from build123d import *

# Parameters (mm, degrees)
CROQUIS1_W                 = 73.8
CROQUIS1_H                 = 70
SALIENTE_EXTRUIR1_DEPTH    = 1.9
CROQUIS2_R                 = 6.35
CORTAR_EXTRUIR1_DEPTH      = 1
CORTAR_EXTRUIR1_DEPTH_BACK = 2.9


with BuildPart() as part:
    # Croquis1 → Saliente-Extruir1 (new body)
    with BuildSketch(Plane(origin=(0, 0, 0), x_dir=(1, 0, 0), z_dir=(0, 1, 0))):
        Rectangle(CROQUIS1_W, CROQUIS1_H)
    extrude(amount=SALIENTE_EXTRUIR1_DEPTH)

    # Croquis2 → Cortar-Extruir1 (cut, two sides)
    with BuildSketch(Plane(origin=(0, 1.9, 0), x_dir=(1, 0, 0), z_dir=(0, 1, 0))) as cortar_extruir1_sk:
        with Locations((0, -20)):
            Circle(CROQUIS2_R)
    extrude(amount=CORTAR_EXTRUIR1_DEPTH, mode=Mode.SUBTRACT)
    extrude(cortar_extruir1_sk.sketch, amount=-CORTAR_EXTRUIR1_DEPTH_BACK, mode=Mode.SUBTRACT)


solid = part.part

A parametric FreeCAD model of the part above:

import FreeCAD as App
import Part
import Sketcher
from FreeCAD import Vector
Q = App.Units.Quantity

doc = App.newDocument("Part")
params = doc.addObject("Spreadsheet::Sheet", "Params")
for row, (alias, value) in enumerate([
    ("sketch1_height", "70 mm"),
    ("sketch1_width", "73.8 mm"),
    ("pad1_length", "1.9 mm"),
    ("sketch2_diameter", "12.7 mm"),
], start=1):
    params.set(f"A{row}", alias)
    params.set(f"B{row}", "=" + value)
    params.setAlias(f"B{row}", alias)

body = doc.addObject("PartDesign::Body", "Body")

sketch1 = body.newObject("Sketcher::SketchObject", "Sketch")
sketch1.AttachmentSupport = (doc.getObject("XZ_Plane"), [""])
sketch1.MapMode = "FlatFace"
sketch1.addGeometry(Part.LineSegment(Vector(-37, -35, 0), Vector(-37, 35, 0)), False)
sketch1.addGeometry(Part.LineSegment(Vector(-37, 35, 0), Vector(37, 35, 0)), False)
sketch1.addGeometry(Part.LineSegment(Vector(37, 35, 0), Vector(37, -35, 0)), False)
sketch1.addGeometry(Part.LineSegment(Vector(37, -35, 0), Vector(-37, -35, 0)), False)
sketch1.addConstraint(Sketcher.Constraint("Coincident", 0, 2, 1, 1))
sketch1.addConstraint(Sketcher.Constraint("Coincident", 1, 2, 2, 1))
sketch1.addConstraint(Sketcher.Constraint("Coincident", 2, 2, 3, 1))
sketch1.addConstraint(Sketcher.Constraint("Coincident", 3, 2, 0, 1))
sketch1.addConstraint(Sketcher.Constraint("Vertical", 0))
sketch1.addConstraint(Sketcher.Constraint("Horizontal", 1))
sketch1.addConstraint(Sketcher.Constraint("Vertical", 2))
sketch1.addConstraint(Sketcher.Constraint("Horizontal", 3))
sketch1.addConstraint(Sketcher.Constraint("Symmetric", 0, 2, 2, 2, -1, 1))
sketch1.addConstraint(Sketcher.Constraint("DistanceY", 0, 1, 0, 2, Q("70 mm")))
sketch1.addConstraint(Sketcher.Constraint("DistanceX", 1, 1, 1, 2, Q("73.8 mm")))
sketch1.setExpression("Constraints[9]", "Params.sketch1_height")
sketch1.setExpression("Constraints[10]", "Params.sketch1_width")
pad1 = body.newObject("PartDesign::Pad", "Pad")
pad1.Profile = sketch1
pad1.setExpression("Length", "Params.pad1_length")
pad1.Reversed = True

sketch2 = body.newObject("Sketcher::SketchObject", "Sketch001")
sketch2.AttachmentSupport = (doc.getObject("XZ_Plane"), [""])
sketch2.MapMode = "FlatFace"
sketch2.AttachmentOffset = App.Placement(Vector(0, 0, -1.9), App.Rotation())
sketch2.addGeometry(Part.Circle(Vector(0, 20, 0), Vector(0, 0, 1), 6), False)
sketch2.addConstraint(Sketcher.Constraint("PointOnObject", 0, 3, -2))
sketch2.addConstraint(Sketcher.Constraint("Diameter", 0, Q("12.7 mm")))
sketch2.addConstraint(Sketcher.Constraint("DistanceY", -1, 1, 0, 3, Q("20 mm")))
sketch2.setExpression("Constraints[1]", "Params.sketch2_diameter")
pocket1 = body.newObject("PartDesign::Pocket", "Pocket")
pocket1.Profile = sketch2
pocket1.Type = "ThroughAll"
pocket1.Midplane = True

doc.recompute()
